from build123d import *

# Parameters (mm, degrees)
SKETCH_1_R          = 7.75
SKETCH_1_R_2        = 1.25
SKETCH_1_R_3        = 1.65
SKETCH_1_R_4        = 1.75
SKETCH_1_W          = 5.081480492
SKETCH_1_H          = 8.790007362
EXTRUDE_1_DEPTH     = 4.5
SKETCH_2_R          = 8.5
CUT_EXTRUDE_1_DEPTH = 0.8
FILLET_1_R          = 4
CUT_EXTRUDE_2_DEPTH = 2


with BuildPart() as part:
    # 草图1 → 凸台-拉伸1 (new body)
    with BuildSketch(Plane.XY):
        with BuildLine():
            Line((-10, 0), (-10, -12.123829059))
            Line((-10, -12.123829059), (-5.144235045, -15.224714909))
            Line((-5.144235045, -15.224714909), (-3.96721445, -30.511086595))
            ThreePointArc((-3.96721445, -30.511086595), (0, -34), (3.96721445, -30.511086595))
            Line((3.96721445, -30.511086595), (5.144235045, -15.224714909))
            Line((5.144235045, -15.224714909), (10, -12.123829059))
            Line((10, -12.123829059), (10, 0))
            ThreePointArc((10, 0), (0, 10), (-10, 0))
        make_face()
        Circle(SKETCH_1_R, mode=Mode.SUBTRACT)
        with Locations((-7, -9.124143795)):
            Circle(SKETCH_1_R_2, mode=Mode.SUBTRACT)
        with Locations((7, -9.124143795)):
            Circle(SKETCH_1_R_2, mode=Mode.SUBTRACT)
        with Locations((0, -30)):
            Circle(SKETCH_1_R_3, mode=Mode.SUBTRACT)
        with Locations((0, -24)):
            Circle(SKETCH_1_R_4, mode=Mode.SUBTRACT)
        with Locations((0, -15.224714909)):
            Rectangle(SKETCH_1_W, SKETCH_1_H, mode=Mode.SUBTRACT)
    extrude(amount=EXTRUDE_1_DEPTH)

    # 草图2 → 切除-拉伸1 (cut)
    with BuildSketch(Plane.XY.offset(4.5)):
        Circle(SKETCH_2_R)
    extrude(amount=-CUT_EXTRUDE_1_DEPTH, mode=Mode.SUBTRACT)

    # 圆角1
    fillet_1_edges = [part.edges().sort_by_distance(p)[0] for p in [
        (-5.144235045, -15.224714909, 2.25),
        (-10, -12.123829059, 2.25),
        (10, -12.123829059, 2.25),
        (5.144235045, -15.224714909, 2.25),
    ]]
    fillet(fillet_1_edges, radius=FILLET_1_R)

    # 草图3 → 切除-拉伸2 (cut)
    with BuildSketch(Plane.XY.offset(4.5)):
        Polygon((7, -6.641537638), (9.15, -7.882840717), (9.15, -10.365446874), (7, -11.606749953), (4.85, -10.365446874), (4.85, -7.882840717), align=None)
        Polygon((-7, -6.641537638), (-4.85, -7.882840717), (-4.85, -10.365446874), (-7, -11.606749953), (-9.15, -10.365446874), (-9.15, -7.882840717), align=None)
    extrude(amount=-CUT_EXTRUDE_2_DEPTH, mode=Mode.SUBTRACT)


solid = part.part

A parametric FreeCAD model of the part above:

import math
import FreeCAD as App
import Part
import Sketcher
Q = App.Units.Quantity


def edges_at(feature, points):
    """Names of the edges that pass closest to the given points."""
    edges = feature.Shape.Edges
    near = lambda p: min(range(len(edges)), key=lambda i: edges[i].distToShape(Part.Vertex(*p))[0])
    return sorted({f"Edge{near(p) + 1}" for p in points})

doc = App.newDocument("Part")
params = doc.addObject("Spreadsheet::Sheet", "Params")
for row, (alias, value) in enumerate([
    ("sketch1_radius", "4 mm"),
    ("sketch1_radius2", "10 mm"),
    ("sketch1_diameter", "3.3 mm"),
    ("sketch1_diameter2", "3.5 mm"),
    ("sketch1_diameter3", "2.5 mm"),
    ("pad1_length", "4.5 mm"),
    ("sketch2_diameter", "17 mm"),
    ("pocket1_length", "0.8 mm"),
    ("fillet_radius", "4 mm"),
    ("pocket2_length", "2 mm"),
], start=1):
    params.set(f"A{row}", alias)
    params.set(f"B{row}", "=" + value)
    params.setAlias(f"B{row}", alias)

body = doc.addObject("PartDesign::Body", "Body")

# Sketch on XY plane
sketch1 = body.newObject("Sketcher::SketchObject", "Sketch")
sketch1.AttachmentSupport = (doc.getObject("XY_Plane"), [""])
sketch1.MapMode = "FlatFace"
sketch1.addGeometry(Part.LineSegment(App.Vector(-10, 0, 0), App.Vector(-10, -12.123829, 0)), False)
sketch1.addGeometry(Part.LineSegment(App.Vector(-10, -12.123829, 0), App.Vector(-5.144235, -15.224715, 0)), False)
sketch1.addGeometry(Part.LineSegment(App.Vector(-5.144235, -15.224715, 0), App.Vector(-3.967214, -30.511087, 0)), False)
sketch1.addGeometry(Part.ArcOfCircle(Part.Circle(App.Vector(0, -30, 0), App.Vector(0, 0, 1), 4), math.radians(-172.659157), math.radians(-7.340843)), False)
sketch1.addGeometry(Part.LineSegment(App.Vector(3.967214, -30.511087, 0), App.Vector(5.144235, -15.224715, 0)), False)
sketch1.addGeometry(Part.LineSegment(App.Vector(5.144235, -15.224715, 0), App.Vector(10, -12.123829, 0)), False)
sketch1.addGeometry(Part.LineSegment(App.Vector(10, -12.123829, 0), App.Vector(10, 0, 0)), False)
sketch1.addGeometry(Part.ArcOfCircle(Part.Circle(App.Vector(0, 0, 0), App.Vector(0, 0, 1), 10), math.radians(0), math.radians(180)), False)
sketch1.addGeometry(Part.Circle(App.Vector(0, -30, 0), App.Vector(0, 0, 1), 1.65), False)
sketch1.addGeometry(Part.Circle(App.Vector(0, -24, 0), App.Vector(0, 0, 1), 1.75), False)
sketch1.addGeometry(Part.LineSegment(App.Vector(2.54074, -19.619719, 0), App.Vector(-2.54074, -19.619719, 0)), False)
sketch1.addGeometry(Part.LineSegment(App.Vector(-2.54074, -19.619719, 0), App.Vector(-2.54074, -10.829711, 0)), False)
sketch1.addGeometry(Part.LineSegment(App.Vector(-2.54074, -10.829711, 0), App.Vector(2.54074, -10.829711, 0)), False)
sketch1.addGeometry(Part.LineSegment(App.Vector(2.54074, -10.829711, 0), App.Vector(2.54074, -19.619719, 0)), False)
sketch1.addGeometry(Part.Circle(App.Vector(-7, -9.124144, 0), App.Vector(0, 0, 1), 1.25), False)
sketch1.addGeometry(Part.Circle(App.Vector(7, -9.124144, 0), App.Vector(0, 0, 1), 1.25), False)
sketch1.addGeometry(Part.Circle(App.Vector(0, 0, 0), App.Vector(0, 0, 1), 7.75), False)
sketch1.addConstraint(Sketcher.Constraint("Coincident", 0, 2, 1, 1))
sketch1.addConstraint(Sketcher.Constraint("Coincident", 1, 2, 2, 1))
sketch1.addConstraint(Sketcher.Constraint("Coincident", 2, 2, 3, 1))
sketch1.addConstraint(Sketcher.Constraint("Coincident", 3, 2, 4, 1))
sketch1.addConstraint(Sketcher.Constraint("Coincident", 4, 2, 5, 1))
sketch1.addConstraint(Sketcher.Constraint("Coincident", 5, 2, 6, 1))
sketch1.addConstraint(Sketcher.Constraint("Tangent", 6, 2, 7, 1))
sketch1.addConstraint(Sketcher.Constraint("Tangent", 7, 2, 0, 1))
sketch1.addConstraint(Sketcher.Constraint("Coincident", 10, 2, 11, 1))
sketch1.addConstraint(Sketcher.Constraint("Coincident", 11, 2, 12, 1))
sketch1.addConstraint(Sketcher.Constraint("Coincident", 12, 2, 13, 1))
sketch1.addConstraint(Sketcher.Constraint("Coincident", 13, 2, 10, 1))
sketch1.addConstraint(Sketcher.Constraint("Vertical", 0))
sketch1.addConstraint(Sketcher.Constraint("Vertical", 6))
sketch1.addConstraint(Sketcher.Constraint("Horizontal", 10))
sketch1.addConstraint(Sketcher.Constraint("Vertical", 11))
sketch1.addConstraint(Sketcher.Constraint("Horizontal", 12))
sketch1.addConstraint(Sketcher.Constraint("Vertical", 13))
sketch1.addConstraint(Sketcher.Constraint("Coincident", 7, 3, -1, 1))
sketch1.addConstraint(Sketcher.Constraint("Coincident", 16, 3, -1, 1))
sketch1.addConstraint(Sketcher.Constraint("Coincident", 8, 3, 3, 3))
sketch1.addConstraint(Sketcher.Constraint("Equal", 14, 15))
sketch1.addConstraint(Sketcher.Constraint("Symmetric", 14, 3, 15, 3, -2))
sketch1.addConstraint(Sketcher.Constraint("Symmetric", 2, 2, 3, 2, -2))
sketch1.addConstraint(Sketcher.Constraint("Symmetric", 1, 2, 4, 2, -2))
sketch1.addConstraint(Sketcher.Constraint("PointOnObject", 9, 3, -2))
sketch1.addConstraint(Sketcher.Constraint("Horizontal", 0, 2, 5, 2))
sketch1.addConstraint(Sketcher.Constraint("Radius", 3, Q("4 mm")))
sketch1.addConstraint(Sketcher.Constraint("Radius", 7, Q("10 mm")))
sketch1.addConstraint(Sketcher.Constraint("Diameter", 8, Q("3.3 mm")))
sketch1.addConstraint(Sketcher.Constraint("Diameter", 9, Q("3.5 mm")))
sketch1.addConstraint(Sketcher.Constraint("Diameter", 14, Q("2.5 mm")))
sketch1.addConstraint(Sketcher.Constraint("Diameter", 16, Q("15.5 mm")))
sketch1.addConstraint(Sketcher.Constraint("DistanceY", 3, 3, -1, 1, Q("30 mm")))
sketch1.addConstraint(Sketcher.Constraint("DistanceY", 9, 3, -1, 1, Q("24 mm")))
sketch1.addConstraint(Sketcher.Constraint("DistanceX", 14, 3, -1, 1, Q("7 mm")))
sketch1.addConstraint(Sketcher.Constraint("DistanceX", 10, 2, 10, 1, Q("5.08148 mm")))
sketch1.addConstraint(Sketcher.Constraint("DistanceY", 0, 2, 0, 1, Q("12.123829 mm")))
sketch1.addConstraint(Sketcher.Constraint("Distance", 1, Q("5.761419 mm")))
sketch1.addConstraint(Sketcher.Constraint("Distance", 2, Q("15.331619 mm")))
sketch1.addConstraint(Sketcher.Constraint("DistanceY", 11, 1, 11, 2, Q("8.790007 mm")))
sketch1.addConstraint(Sketcher.Constraint("DistanceX", 10, 2, -1, 1, Q("2.54074 mm")))
sketch1.addConstraint(Sketcher.Constraint("DistanceY", 10, 2, -1, 1, Q("19.619719 mm")))
sketch1.addConstraint(Sketcher.Constraint("DistanceY", 1, 2, 14, 3, Q("6.100571 mm")))
sketch1.addConstraint(Sketcher.Constraint("DistanceX", 1, 2, 2, 2, Q("1.177021 mm")))
sketch1.setExpression("Constraints[27]", "Params.sketch1_radius")
sketch1.setExpression("Constraints[28]", "Params.sketch1_radius2")
sketch1.setExpression("Constraints[29]", "Params.sketch1_diameter")
sketch1.setExpression("Constraints[30]", "Params.sketch1_diameter2")
sketch1.setExpression("Constraints[31]", "Params.sketch1_diameter3")
pad1 = body.newObject("PartDesign::Pad", "Pad")
pad1.Profile = sketch1
pad1.setExpression("Length", "Params.pad1_length")

# Sketch on XY plane
sketch2 = body.newObject("Sketcher::SketchObject", "Sketch001")
sketch2.AttachmentSupport = (doc.getObject("XY_Plane"), [""])
sketch2.MapMode = "FlatFace"
sketch2.AttachmentOffset = App.Placement(App.Vector(0, 0, 4.5), App.Rotation())
sketch2.addGeometry(Part.Circle(App.Vector(0, 0, 0), App.Vector(0, 0, 1), 8.5), False)
sketch2.addConstraint(Sketcher.Constraint("Coincident", 0, 3, -1, 1))
sketch2.addConstraint(Sketcher.Constraint("Diameter", 0, Q("17 mm")))
sketch2.setExpression("Constraints[1]", "Params.sketch2_diameter")
pocket1 = body.newObject("PartDesign::Pocket", "Pocket")
pocket1.Profile = sketch2
pocket1.setExpression("Length", "Params.pocket1_length")
doc.recompute()

fillet = body.newObject("PartDesign::Fillet", "Fillet")
fillet.Base = (pocket1, edges_at(pocket1, [
    (-5.144, -15.225, 2.25),
    (-10, -12.124, 2.25),
    (10, -12.124, 2.25),
    (5.144, -15.225, 2.25),
]))
fillet.setExpression("Radius", "Params.fillet_radius")

# Sketch on XY plane
sketch3 = body.newObject("Sketcher::SketchObject", "Sketch002")
sketch3.AttachmentSupport = (doc.getObject("XY_Plane"), [""])
sketch3.MapMode = "FlatFace"
sketch3.AttachmentOffset = App.Placement(App.Vector(0, 0, 4.5), App.Rotation())
sketch3.addGeometry(Part.LineSegment(App.Vector(9.15, -7.882841, 0), App.Vector(7, -6.641538, 0)), False)
sketch3.addGeometry(Part.LineSegment(App.Vector(7, -6.641538, 0), App.Vector(4.85, -7.882841, 0)), False)
sketch3.addGeometry(Part.LineSegment(App.Vector(4.85, -7.882841, 0), App.Vector(4.85, -10.365447, 0)), False)
sketch3.addGeometry(Part.LineSegment(App.Vector(4.85, -10.365447, 0), App.Vector(7, -11.60675, 0)), False)
sketch3.addGeometry(Part.LineSegment(App.Vector(7, -11.60675, 0), App.Vector(9.15, -10.365447, 0)), False)
sketch3.addGeometry(Part.LineSegment(App.Vector(9.15, -10.365447, 0), App.Vector(9.15, -7.882841, 0)), False)
sketch3.addGeometry(Part.LineSegment(App.Vector(-4.85, -7.882841, 0), App.Vector(-7, -6.641538, 0)), False)
sketch3.addGeometry(Part.LineSegment(App.Vector(-7, -6.641538, 0), App.Vector(-9.15, -7.882841, 0)), False)
sketch3.addGeometry(Part.LineSegment(App.Vector(-9.15, -7.882841, 0), App.Vector(-9.15, -10.365447, 0)), False)
sketch3.addGeometry(Part.LineSegment(App.Vector(-9.15, -10.365447, 0), App.Vector(-7, -11.60675, 0)), False)
sketch3.addGeometry(Part.LineSegment(App.Vector(-7, -11.60675, 0), App.Vector(-4.85, -10.365447, 0)), False)
sketch3.addGeometry(Part.LineSegment(App.Vector(-4.85, -10.365447, 0), App.Vector(-4.85, -7.882841, 0)), False)
sketch3.addConstraint(Sketcher.Constraint("Coincident", 0, 2, 1, 1))
sketch3.addConstraint(Sketcher.Constraint("Coincident", 1, 2, 2, 1))
sketch3.addConstraint(Sketcher.Constraint("Coincident", 2, 2, 3, 1))
sketch3.addConstraint(Sketcher.Constraint("Coincident", 3, 2, 4, 1))
sketch3.addConstraint(Sketcher.Constraint("Coincident", 4, 2, 5, 1))
sketch3.addConstraint(Sketcher.Constraint("Coincident", 5, 2, 0, 1))
sketch3.addConstraint(Sketcher.Constraint("Coincident", 6, 2, 7, 1))
sketch3.addConstraint(Sketcher.Constraint("Coincident", 7, 2, 8, 1))
sketch3.addConstraint(Sketcher.Constraint("Coincident", 8, 2, 9, 1))
sketch3.addConstraint(Sketcher.Constraint("Coincident", 9, 2, 10, 1))
sketch3.addConstraint(Sketcher.Constraint("Coincident", 10, 2, 11, 1))
sketch3.addConstraint(Sketcher.Constraint("Coincident", 11, 2, 6, 1))
sketch3.addConstraint(Sketcher.Constraint("Vertical", 2))
sketch3.addConstraint(Sketcher.Constraint("Vertical", 5))
sketch3.addConstraint(Sketcher.Constraint("Vertical", 8))
sketch3.addConstraint(Sketcher.Constraint("Vertical", 11))
sketch3.addConstraint(Sketcher.Constraint("Symmetric", 0, 2, 6, 2, -2))
sketch3.addConstraint(Sketcher.Constraint("Symmetric", 5, 2, 7, 2, -2))
sketch3.addConstraint(Sketcher.Constraint("Symmetric", 3, 2, 9, 2, -2))
sketch3.addConstraint(Sketcher.Constraint("Symmetric", 2, 2, 10, 2, -2))
sketch3.addConstraint(Sketcher.Constraint("Parallel", 0, 3))
sketch3.addConstraint(Sketcher.Constraint("Parallel", 1, 4))
sketch3.addConstraint(Sketcher.Constraint("Parallel", 3, 6))
sketch3.addConstraint(Sketcher.Constraint("Parallel", 4, 7))
sketch3.addConstraint(Sketcher.Constraint("Parallel", 6, 9))
sketch3.addConstraint(Sketcher.Constraint("Horizontal", 2, 2, 4, 2))
sketch3.addConstraint(Sketcher.Constraint("Horizontal", 1, 2, 5, 2))
sketch3.addConstraint(Sketcher.Constraint("Angle", 0, Q("150 deg")))
sketch3.addConstraint(Sketcher.Constraint("DistanceX", -1, 1, 0, 2, Q("7 mm")))
sketch3.addConstraint(Sketcher.Constraint("DistanceX", 2, 2, 4, 2, Q("4.3 mm")))
sketch3.addConstraint(Sketcher.Constraint("DistanceY", 2, 2, 2, 1, Q("2.482606 mm")))
sketch3.addConstraint(Sketcher.Constraint("DistanceY", 1, 2, -1, 1, Q("7.882841 mm")))
pocket2 = body.newObject("PartDesign::Pocket", "Pocket001")
pocket2.Profile = sketch3
pocket2.setExpression("Length", "Params.pocket2_length")

doc.recompute()
